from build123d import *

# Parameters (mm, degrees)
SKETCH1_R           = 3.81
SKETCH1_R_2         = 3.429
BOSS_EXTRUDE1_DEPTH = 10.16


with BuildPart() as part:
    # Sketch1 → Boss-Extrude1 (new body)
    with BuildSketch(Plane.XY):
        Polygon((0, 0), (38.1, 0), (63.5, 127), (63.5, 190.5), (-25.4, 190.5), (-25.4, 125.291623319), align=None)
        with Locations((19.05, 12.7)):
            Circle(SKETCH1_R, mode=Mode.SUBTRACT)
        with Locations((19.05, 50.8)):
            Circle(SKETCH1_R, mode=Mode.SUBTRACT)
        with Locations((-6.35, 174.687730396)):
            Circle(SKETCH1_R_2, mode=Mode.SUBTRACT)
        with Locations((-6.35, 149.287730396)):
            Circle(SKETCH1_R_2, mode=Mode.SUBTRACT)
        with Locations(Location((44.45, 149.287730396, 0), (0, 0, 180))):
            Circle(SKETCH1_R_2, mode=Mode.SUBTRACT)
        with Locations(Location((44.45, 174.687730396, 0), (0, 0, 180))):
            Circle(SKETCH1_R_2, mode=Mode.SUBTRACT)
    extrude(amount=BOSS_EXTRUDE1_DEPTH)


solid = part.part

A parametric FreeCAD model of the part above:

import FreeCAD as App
import Part
import Sketcher

V = App.Vector
Q = App.Units.Quantity


def add_polygon(sketch, points):
    """Adds a closed chain of lines whose ends are joined by coincident constraints."""
    first, n = sketch.GeometryCount, len(points)
    for a, b in zip(points, points[1:] + points[:1]):
        sketch.addGeometry(Part.LineSegment(App.Vector(*a, 0), App.Vector(*b, 0)), False)
    for i in range(n):
        sketch.addConstraint(Sketcher.Constraint("Coincident", first + i, 2, first + (i + 1) % n, 1))

doc = App.newDocument("Part")
body = doc.addObject("PartDesign::Body", "Body")

sketch1 = body.newObject("Sketcher::SketchObject", "Sketch")
sketch1.AttachmentSupport = (doc.getObject("XY_Plane"), [""])
sketch1.MapMode = "FlatFace"
add_polygon(sketch1, [(0, 0), (38.1, 0), (63.5, 127), (63.5, 190.5), (-25.4, 190.5), (-25.4, 125.3)])
sketch1.addGeometry(Part.Circle(V(19.1, 12.7, 0), V(0, 0, 1), 3.8), False)
sketch1.addGeometry(Part.Circle(V(19.1, 50.8, 0), V(0, 0, 1), 3.8), False)
sketch1.addGeometry(Part.Circle(V(-6.3, 149.3, 0), V(0, 0, 1), 3.4), False)
sketch1.addGeometry(Part.Circle(V(-6.3, 174.7, 0), V(0, 0, 1), 3.4), False)
sketch1.addGeometry(Part.Circle(V(44.5, 149.3, 0), V(0, 0, 1), 3.4), False)
sketch1.addGeometry(Part.Circle(V(44.5, 174.7, 0), V(0, 0, 1), 3.4), False)
sketch1.addConstraint([
    Sketcher.Constraint("Horizontal", 0),
    Sketcher.Constraint("Vertical", 2),
    Sketcher.Constraint("Horizontal", 3),
    Sketcher.Constraint("Vertical", 4),
    Sketcher.Constraint("Coincident", 5, 2, -1, 1),
    Sketcher.Constraint("Equal", 6, 7),
    Sketcher.Constraint("Equal", 8, 9),
    Sketcher.Constraint("Equal", 9, 10),
    Sketcher.Constraint("Equal", 10, 11),
    Sketcher.Constraint("Horizontal", 8, 3, 10, 3),
    Sketcher.Constraint("Horizontal", 9, 3, 11, 3),
    Sketcher.Constraint("Vertical", 6, 3, 7, 3),
    Sketcher.Constraint("Vertical", 8, 3, 9, 3),
    Sketcher.Constraint("Vertical", 10, 3, 11, 3),
    Sketcher.Constraint("Diameter", 6, Q("0.3 in")),
    Sketcher.Constraint("Diameter", 8, Q("0.27 in")),
    Sketcher.Constraint("DistanceX", 0, 1, 0, 2, Q("1.5 in")),
    Sketcher.Constraint("DistanceX", 3, 2, 3, 1, Q("3.5 in")),
    Sketcher.Constraint("DistanceY", 2, 1, 2, 2, Q("2.5 in")),
    Sketcher.Constraint("DistanceY", -1, 1, 7, 3, Q("2 in")),
    Sketcher.Constraint("DistanceY", -1, 1, 1, 2, Q("5 in")),
    Sketcher.Constraint("DistanceX", 3, 2, -1, 1, Q("1 in")),
    Sketcher.Constraint("DistanceX", 8, 3, 7, 3, Q("1 in")),
    Sketcher.Constraint("DistanceY", 8, 3, 9, 3, Q("1 in")),
    Sketcher.Constraint("DistanceX", 8, 3, 10, 3, Q("2 in")),
    Sketcher.Constraint("DistanceY", -1, 1, 6, 3, Q("0.5 in")),
    Sketcher.Constraint("DistanceX", -1, 1, 6, 3, Q("0.75 in")),
    Sketcher.Constraint("DistanceY", 4, 2, 4, 1, Q("65.208377 mm")),
    Sketcher.Constraint("DistanceY", -1, 1, 8, 3, Q("149.28773 mm")),
])
pad1 = body.newObject("PartDesign::Pad", "Pad")
pad1.Profile = sketch1
pad1.Length = Q("0.4 in")

doc.recompute()
